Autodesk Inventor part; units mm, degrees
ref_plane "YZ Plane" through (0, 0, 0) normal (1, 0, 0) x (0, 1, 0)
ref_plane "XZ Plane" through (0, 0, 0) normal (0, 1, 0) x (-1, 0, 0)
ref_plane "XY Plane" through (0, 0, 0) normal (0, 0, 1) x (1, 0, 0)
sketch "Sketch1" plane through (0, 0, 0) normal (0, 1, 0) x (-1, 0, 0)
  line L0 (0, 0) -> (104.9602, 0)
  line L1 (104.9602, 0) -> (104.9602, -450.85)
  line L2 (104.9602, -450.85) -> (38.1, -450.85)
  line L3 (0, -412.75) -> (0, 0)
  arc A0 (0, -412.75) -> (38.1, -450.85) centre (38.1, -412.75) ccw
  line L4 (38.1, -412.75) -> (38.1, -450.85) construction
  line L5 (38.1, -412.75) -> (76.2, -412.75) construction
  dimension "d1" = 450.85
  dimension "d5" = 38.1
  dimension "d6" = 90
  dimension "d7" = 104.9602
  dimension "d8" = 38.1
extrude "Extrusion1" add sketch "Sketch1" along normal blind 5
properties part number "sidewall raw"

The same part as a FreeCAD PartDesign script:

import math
import FreeCAD as App
import Part
import Sketcher

V = App.Vector
Q = App.Units.Quantity

doc = App.newDocument("Part")
params = doc.addObject("Spreadsheet::Sheet", "Params")
for row, (alias, value) in enumerate([
    ("sketch1_radius", "1.5 in"),
    ("sketch1_height", "17.75 in"),
    ("pad1_length", "5 mm"),
], start=1):
    params.set(f"A{row}", alias)
    params.set(f"B{row}", "=" + value)
    params.setAlias(f"B{row}", alias)

body = doc.addObject("PartDesign::Body", "Body")

# Sketch on XZ plane
sketch1 = doc.addObject("Sketcher::SketchObject", "Sketch")
body.addObject(sketch1)
sketch1.AttachmentSupport = (doc.XZ_Plane, [""])
sketch1.MapMode = "FlatFace"
sketch1.addGeometry([
    Part.LineSegment(V(-104.9602, 0, 0), V(0, 0, 0)),  # 0
    Part.LineSegment(V(0, 0, 0), V(0, -412.75, 0)),  # 1
    Part.ArcOfCircle(Part.Circle(V(-38.1, -412.75, 0), V(0, 0, 1), 38.1), math.radians(-90), math.radians(0)),  # 2
    Part.LineSegment(V(-38.1, -450.85, 0), V(-104.9602, -450.85, 0)),  # 3
    Part.LineSegment(V(-104.9602, -450.85, 0), V(-104.9602, 0, 0)),  # 4
], False)
sketch1.addConstraint([
    Sketcher.Constraint("Coincident", 0, 2, 1, 1),
    Sketcher.Constraint("Tangent", 1, 2, 2, 2),
    Sketcher.Constraint("Tangent", 2, 1, 3, 1),
    Sketcher.Constraint("Coincident", 3, 2, 4, 1),
    Sketcher.Constraint("Coincident", 4, 2, 0, 1),
    Sketcher.Constraint("Horizontal", 0),
    Sketcher.Constraint("Vertical", 1),
    Sketcher.Constraint("Horizontal", 3),
    Sketcher.Constraint("Vertical", 4),
    Sketcher.Constraint("Coincident", 0, 2, -1, 1),
    Sketcher.Constraint("Radius", 2, Q("1.5 in")),
    Sketcher.Constraint("DistanceY", 4, 1, 4, 2, Q("17.75 in")),
    Sketcher.Constraint("DistanceX", 0, 1, 0, 2, Q("4.1323 in")),
])
sketch1.setExpression("Constraints[10]", "Params.sketch1_radius")
sketch1.setExpression("Constraints[11]", "Params.sketch1_height")
pad1 = doc.addObject("PartDesign::Pad", "Pad")
body.addObject(pad1)
pad1.Profile = sketch1
pad1.setExpression("Length", "Params.pad1_length")
pad1.Reversed = True

doc.recompute()
